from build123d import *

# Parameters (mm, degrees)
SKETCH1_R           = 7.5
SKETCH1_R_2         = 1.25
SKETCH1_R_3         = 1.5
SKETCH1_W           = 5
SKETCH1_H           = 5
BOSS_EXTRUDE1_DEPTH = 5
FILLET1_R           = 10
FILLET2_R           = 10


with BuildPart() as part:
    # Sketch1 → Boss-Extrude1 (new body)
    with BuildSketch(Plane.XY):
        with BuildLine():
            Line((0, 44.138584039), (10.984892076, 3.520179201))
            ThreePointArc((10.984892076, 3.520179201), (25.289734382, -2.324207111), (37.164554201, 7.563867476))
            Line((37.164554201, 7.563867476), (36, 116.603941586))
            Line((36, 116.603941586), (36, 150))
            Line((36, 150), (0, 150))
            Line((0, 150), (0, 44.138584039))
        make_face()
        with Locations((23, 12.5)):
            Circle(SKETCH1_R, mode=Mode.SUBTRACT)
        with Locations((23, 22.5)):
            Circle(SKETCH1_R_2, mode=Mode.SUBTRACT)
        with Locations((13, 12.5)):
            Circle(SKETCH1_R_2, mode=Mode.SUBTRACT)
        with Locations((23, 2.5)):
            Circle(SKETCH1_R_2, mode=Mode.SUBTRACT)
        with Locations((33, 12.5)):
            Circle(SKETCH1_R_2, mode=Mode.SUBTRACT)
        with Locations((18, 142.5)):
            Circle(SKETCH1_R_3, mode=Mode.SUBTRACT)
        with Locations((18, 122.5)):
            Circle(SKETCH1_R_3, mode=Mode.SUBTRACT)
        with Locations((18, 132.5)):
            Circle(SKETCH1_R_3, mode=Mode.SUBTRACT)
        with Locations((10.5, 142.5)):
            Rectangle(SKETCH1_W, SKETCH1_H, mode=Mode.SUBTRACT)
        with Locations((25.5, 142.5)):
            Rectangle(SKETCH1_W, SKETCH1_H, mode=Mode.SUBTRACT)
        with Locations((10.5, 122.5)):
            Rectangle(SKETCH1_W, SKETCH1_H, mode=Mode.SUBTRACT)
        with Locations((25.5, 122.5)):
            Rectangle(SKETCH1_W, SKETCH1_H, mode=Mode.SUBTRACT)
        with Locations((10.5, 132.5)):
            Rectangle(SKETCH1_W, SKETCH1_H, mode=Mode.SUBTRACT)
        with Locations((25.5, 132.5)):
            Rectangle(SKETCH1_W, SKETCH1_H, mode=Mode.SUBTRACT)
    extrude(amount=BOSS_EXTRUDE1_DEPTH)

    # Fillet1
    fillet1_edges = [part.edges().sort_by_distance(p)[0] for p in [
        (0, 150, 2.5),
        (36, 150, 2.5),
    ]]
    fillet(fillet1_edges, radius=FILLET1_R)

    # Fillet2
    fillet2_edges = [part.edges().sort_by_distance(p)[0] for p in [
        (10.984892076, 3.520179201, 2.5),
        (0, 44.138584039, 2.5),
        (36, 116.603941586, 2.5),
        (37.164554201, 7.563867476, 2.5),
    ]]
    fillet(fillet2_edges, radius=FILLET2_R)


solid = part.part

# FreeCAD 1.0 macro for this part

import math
import FreeCAD as App
import Part
import Sketcher

V = App.Vector
Q = App.Units.Quantity


def edges_at(feature, points):
    """Names of the edges that pass closest to the given points."""
    edges = feature.Shape.Edges
    near = lambda p: min(range(len(edges)), key=lambda i: edges[i].distToShape(Part.Vertex(*p))[0])
    return sorted({f"Edge{near(p) + 1}" for p in points})


def add_polygon(sketch, points):
    """Adds a closed chain of lines whose ends are joined by coincident constraints."""
    first, n = sketch.GeometryCount, len(points)
    for a, b in zip(points, points[1:] + points[:1]):
        sketch.addGeometry(Part.LineSegment(App.Vector(*a, 0), App.Vector(*b, 0)), False)
    for i in range(n):
        sketch.addConstraint(Sketcher.Constraint("Coincident", first + i, 2, first + (i + 1) % n, 1))

doc = App.newDocument("Part")
body = doc.addObject("PartDesign::Body", "Body")

sketch1 = doc.addObject("Sketcher::SketchObject", "Sketch")
body.addObject(sketch1)
sketch1.AttachmentSupport = (doc.XY_Plane, [""])
sketch1.MapMode = "FlatFace"
sketch1.addGeometry(Part.LineSegment(V(0, 44.138584, 0), V(10.984892, 3.520179, 0)), False)
sketch1.addGeometry(Part.ArcOfCircle(Part.Circle(V(23, 12.5, 0), V(0, 0, 1), 15), math.radians(-143.22639), math.radians(-19.212672)), False)
sketch1.addGeometry(Part.LineSegment(V(37.164554, 7.563867, 0), V(36, 116.603942, 0)), False)
sketch1.addGeometry(Part.LineSegment(V(36, 116.603942, 0), V(36, 150, 0)), False)
sketch1.addGeometry(Part.LineSegment(V(36, 150, 0), V(0, 150, 0)), False)
sketch1.addGeometry(Part.LineSegment(V(0, 150, 0), V(0, 44.138584, 0)), False)
sketch1.addGeometry(Part.Circle(V(13, 12.5, 0), V(0, 0, 1), 1.25), False)
sketch1.addGeometry(Part.Circle(V(23, 2.5, 0), V(0, 0, 1), 1.25), False)
sketch1.addGeometry(Part.Circle(V(23, 12.5, 0), V(0, 0, 1), 7.5), False)
sketch1.addGeometry(Part.Circle(V(23, 22.5, 0), V(0, 0, 1), 1.25), False)
sketch1.addGeometry(Part.Circle(V(33, 12.5, 0), V(0, 0, 1), 1.25), False)
add_polygon(sketch1, [(13, 120), (8, 120), (8, 125), (13, 125)])
add_polygon(sketch1, [(13, 130), (8, 130), (8, 135), (13, 135)])
add_polygon(sketch1, [(13, 140), (8, 140), (8, 145), (13, 145)])
sketch1.addGeometry(Part.Circle(V(18, 122.5, 0), V(0, 0, 1), 1.5), False)
sketch1.addGeometry(Part.Circle(V(18, 132.5, 0), V(0, 0, 1), 1.5), False)
sketch1.addGeometry(Part.Circle(V(18, 142.5, 0), V(0, 0, 1), 1.5), False)
add_polygon(sketch1, [(28, 120), (23, 120), (23, 125), (28, 125)])
add_polygon(sketch1, [(28, 130), (23, 130), (23, 135), (28, 135)])
add_polygon(sketch1, [(28, 140), (23, 140), (23, 145), (28, 145)])
sketch1.addConstraint([
    Sketcher.Constraint("Coincident", 0, 2, 1, 1),
    Sketcher.Constraint("Coincident", 1, 2, 2, 1),
    Sketcher.Constraint("Coincident", 2, 2, 3, 1),
    Sketcher.Constraint("Coincident", 3, 2, 4, 1),
    Sketcher.Constraint("Coincident", 4, 2, 5, 1),
    Sketcher.Constraint("Coincident", 5, 2, 0, 1),
    Sketcher.Constraint("Vertical", 3),
    Sketcher.Constraint("Horizontal", 4),
    Sketcher.Constraint("Vertical", 5),
    Sketcher.Constraint("Horizontal", 11),
    Sketcher.Constraint("Vertical", 12),
    Sketcher.Constraint("Horizontal", 13),
    Sketcher.Constraint("Vertical", 14),
    Sketcher.Constraint("Horizontal", 15),
    Sketcher.Constraint("Vertical", 16),
    Sketcher.Constraint("Horizontal", 17),
    Sketcher.Constraint("Vertical", 18),
    Sketcher.Constraint("Horizontal", 19),
    Sketcher.Constraint("Vertical", 20),
    Sketcher.Constraint("Horizontal", 21),
    Sketcher.Constraint("Vertical", 22),
    Sketcher.Constraint("Horizontal", 26),
    Sketcher.Constraint("Vertical", 27),
    Sketcher.Constraint("Horizontal", 28),
    Sketcher.Constraint("Vertical", 29),
    Sketcher.Constraint("Horizontal", 30),
    Sketcher.Constraint("Vertical", 31),
    Sketcher.Constraint("Horizontal", 32),
    Sketcher.Constraint("Vertical", 33),
    Sketcher.Constraint("Horizontal", 34),
    Sketcher.Constraint("Vertical", 35),
    Sketcher.Constraint("Horizontal", 36),
    Sketcher.Constraint("Vertical", 37),
    Sketcher.Constraint("Coincident", 8, 3, 1, 3),
    Sketcher.Constraint("Equal", 6, 7),
    Sketcher.Constraint("Equal", 7, 9),
    Sketcher.Constraint("Equal", 9, 10),
    Sketcher.Constraint("Equal", 23, 24),
    Sketcher.Constraint("Equal", 24, 25),
    Sketcher.Constraint("PointOnObject", 4, 2, -2),
    Sketcher.Constraint("Horizontal", 1, 3, 6, 3),
    Sketcher.Constraint("Horizontal", 8, 3, 10, 3),
    Sketcher.Constraint("Horizontal", 14, 2, 26, 2),
    Sketcher.Constraint("Horizontal", 13, 2, 27, 2),
    Sketcher.Constraint("Horizontal", 18, 2, 30, 2),
    Sketcher.Constraint("Horizontal", 17, 2, 31, 2),
    Sketcher.Constraint("Horizontal", 22, 2, 34, 2),
    Sketcher.Constraint("Horizontal", 21, 2, 35, 2),
    Sketcher.Constraint("Vertical", 1, 3, 7, 3),
    Sketcher.Constraint("Vertical", 8, 3, 9, 3),
    Sketcher.Constraint("Vertical", 23, 3, 24, 3),
    Sketcher.Constraint("Vertical", 24, 3, 25, 3),
    Sketcher.Constraint("Vertical", 6, 3, 13, 2),
    Sketcher.Constraint("Vertical", 12, 2, 15, 2),
    Sketcher.Constraint("Vertical", 14, 2, 17, 2),
    Sketcher.Constraint("Vertical", 16, 2, 19, 2),
    Sketcher.Constraint("Vertical", 18, 2, 21, 2),
    Sketcher.Constraint("Vertical", 9, 3, 26, 2),
    Sketcher.Constraint("Vertical", 27, 2, 30, 2),
    Sketcher.Constraint("Vertical", 29, 2, 32, 2),
    Sketcher.Constraint("Vertical", 31, 2, 34, 2),
    Sketcher.Constraint("Vertical", 33, 2, 36, 2),
    Sketcher.Constraint("Equal", 21, 26),
    Sketcher.Constraint("Equal", 36, 12),
    Sketcher.Constraint("Equal", 14, 16),
    Sketcher.Constraint("Equal", 18, 20),
    Sketcher.Constraint("Diameter", 8, Q("15 mm")),
    Sketcher.Constraint("Diameter", 23, Q("3 mm")),
    Sketcher.Constraint("Radius", 1, Q("15 mm")),
    Sketcher.Constraint("Diameter", 6, Q("2.5 mm")),
    Sketcher.Constraint("DistanceX", 4, 2, 4, 1, Q("36 mm")),
    Sketcher.Constraint("DistanceX", 11, 2, 11, 1, Q("5 mm")),
    Sketcher.Constraint("DistanceX", -1, 1, 1, 3, Q("23 mm")),
    Sketcher.Constraint("DistanceX", -1, 1, 6, 3, Q("13 mm")),
    Sketcher.Constraint("DistanceX", -1, 1, 10, 3, Q("33 mm")),
    Sketcher.Constraint("DistanceX", -1, 1, 23, 3, Q("18 mm")),
    Sketcher.Constraint("DistanceY", -1, 1, 3, 2, Q("150 mm")),
    Sketcher.Constraint("DistanceY", -1, 1, 11, 2, Q("120 mm")),
    Sketcher.Constraint("DistanceY", -1, 1, 15, 2, Q("130 mm")),
    Sketcher.Constraint("DistanceY", -1, 1, 19, 2, Q("140 mm")),
    Sketcher.Constraint("DistanceY", 7, 3, 1, 3, Q("10 mm")),
    Sketcher.Constraint("DistanceY", 1, 3, 9, 3, Q("10 mm")),
    Sketcher.Constraint("DistanceY", 9, 3, 23, 3, Q("100 mm")),
    Sketcher.Constraint("DistanceY", 23, 3, 24, 3, Q("10 mm")),
    Sketcher.Constraint("DistanceY", 24, 3, 25, 3, Q("10 mm")),
    Sketcher.Constraint("DistanceY", -1, 1, 1, 3, Q("12.5 mm")),
    Sketcher.Constraint("DistanceY", 3, 1, 3, 2, Q("33.396058 mm")),
    Sketcher.Constraint("Distance", 0, Q("42.077579 mm")),
    Sketcher.Constraint("DistanceY", 5, 2, 5, 1, Q("105.861416 mm")),
    Sketcher.Constraint("Distance", 2, Q("109.046293 mm")),
])
pad1 = doc.addObject("PartDesign::Pad", "Pad")
body.addObject(pad1)
pad1.Profile = sketch1
pad1.Length = 5
doc.recompute()

fillet = doc.addObject("PartDesign::Fillet", "Fillet")
body.addObject(fillet)
fillet.Base = (pad1, edges_at(pad1, [(0, 150, 2.5), (36, 150, 2.5)]))
fillet.Radius = 10
doc.recompute()

fillet2 = doc.addObject("PartDesign::Fillet", "Fillet001")
body.addObject(fillet2)
fillet2.Base = (fillet, edges_at(fillet, [
    (10.985, 3.52, 2.5),
    (0, 44.139, 2.5),
    (36, 116.604, 2.5),
    (37.165, 7.564, 2.5),
]))
fillet2.Radius = 10

doc.recompute()
